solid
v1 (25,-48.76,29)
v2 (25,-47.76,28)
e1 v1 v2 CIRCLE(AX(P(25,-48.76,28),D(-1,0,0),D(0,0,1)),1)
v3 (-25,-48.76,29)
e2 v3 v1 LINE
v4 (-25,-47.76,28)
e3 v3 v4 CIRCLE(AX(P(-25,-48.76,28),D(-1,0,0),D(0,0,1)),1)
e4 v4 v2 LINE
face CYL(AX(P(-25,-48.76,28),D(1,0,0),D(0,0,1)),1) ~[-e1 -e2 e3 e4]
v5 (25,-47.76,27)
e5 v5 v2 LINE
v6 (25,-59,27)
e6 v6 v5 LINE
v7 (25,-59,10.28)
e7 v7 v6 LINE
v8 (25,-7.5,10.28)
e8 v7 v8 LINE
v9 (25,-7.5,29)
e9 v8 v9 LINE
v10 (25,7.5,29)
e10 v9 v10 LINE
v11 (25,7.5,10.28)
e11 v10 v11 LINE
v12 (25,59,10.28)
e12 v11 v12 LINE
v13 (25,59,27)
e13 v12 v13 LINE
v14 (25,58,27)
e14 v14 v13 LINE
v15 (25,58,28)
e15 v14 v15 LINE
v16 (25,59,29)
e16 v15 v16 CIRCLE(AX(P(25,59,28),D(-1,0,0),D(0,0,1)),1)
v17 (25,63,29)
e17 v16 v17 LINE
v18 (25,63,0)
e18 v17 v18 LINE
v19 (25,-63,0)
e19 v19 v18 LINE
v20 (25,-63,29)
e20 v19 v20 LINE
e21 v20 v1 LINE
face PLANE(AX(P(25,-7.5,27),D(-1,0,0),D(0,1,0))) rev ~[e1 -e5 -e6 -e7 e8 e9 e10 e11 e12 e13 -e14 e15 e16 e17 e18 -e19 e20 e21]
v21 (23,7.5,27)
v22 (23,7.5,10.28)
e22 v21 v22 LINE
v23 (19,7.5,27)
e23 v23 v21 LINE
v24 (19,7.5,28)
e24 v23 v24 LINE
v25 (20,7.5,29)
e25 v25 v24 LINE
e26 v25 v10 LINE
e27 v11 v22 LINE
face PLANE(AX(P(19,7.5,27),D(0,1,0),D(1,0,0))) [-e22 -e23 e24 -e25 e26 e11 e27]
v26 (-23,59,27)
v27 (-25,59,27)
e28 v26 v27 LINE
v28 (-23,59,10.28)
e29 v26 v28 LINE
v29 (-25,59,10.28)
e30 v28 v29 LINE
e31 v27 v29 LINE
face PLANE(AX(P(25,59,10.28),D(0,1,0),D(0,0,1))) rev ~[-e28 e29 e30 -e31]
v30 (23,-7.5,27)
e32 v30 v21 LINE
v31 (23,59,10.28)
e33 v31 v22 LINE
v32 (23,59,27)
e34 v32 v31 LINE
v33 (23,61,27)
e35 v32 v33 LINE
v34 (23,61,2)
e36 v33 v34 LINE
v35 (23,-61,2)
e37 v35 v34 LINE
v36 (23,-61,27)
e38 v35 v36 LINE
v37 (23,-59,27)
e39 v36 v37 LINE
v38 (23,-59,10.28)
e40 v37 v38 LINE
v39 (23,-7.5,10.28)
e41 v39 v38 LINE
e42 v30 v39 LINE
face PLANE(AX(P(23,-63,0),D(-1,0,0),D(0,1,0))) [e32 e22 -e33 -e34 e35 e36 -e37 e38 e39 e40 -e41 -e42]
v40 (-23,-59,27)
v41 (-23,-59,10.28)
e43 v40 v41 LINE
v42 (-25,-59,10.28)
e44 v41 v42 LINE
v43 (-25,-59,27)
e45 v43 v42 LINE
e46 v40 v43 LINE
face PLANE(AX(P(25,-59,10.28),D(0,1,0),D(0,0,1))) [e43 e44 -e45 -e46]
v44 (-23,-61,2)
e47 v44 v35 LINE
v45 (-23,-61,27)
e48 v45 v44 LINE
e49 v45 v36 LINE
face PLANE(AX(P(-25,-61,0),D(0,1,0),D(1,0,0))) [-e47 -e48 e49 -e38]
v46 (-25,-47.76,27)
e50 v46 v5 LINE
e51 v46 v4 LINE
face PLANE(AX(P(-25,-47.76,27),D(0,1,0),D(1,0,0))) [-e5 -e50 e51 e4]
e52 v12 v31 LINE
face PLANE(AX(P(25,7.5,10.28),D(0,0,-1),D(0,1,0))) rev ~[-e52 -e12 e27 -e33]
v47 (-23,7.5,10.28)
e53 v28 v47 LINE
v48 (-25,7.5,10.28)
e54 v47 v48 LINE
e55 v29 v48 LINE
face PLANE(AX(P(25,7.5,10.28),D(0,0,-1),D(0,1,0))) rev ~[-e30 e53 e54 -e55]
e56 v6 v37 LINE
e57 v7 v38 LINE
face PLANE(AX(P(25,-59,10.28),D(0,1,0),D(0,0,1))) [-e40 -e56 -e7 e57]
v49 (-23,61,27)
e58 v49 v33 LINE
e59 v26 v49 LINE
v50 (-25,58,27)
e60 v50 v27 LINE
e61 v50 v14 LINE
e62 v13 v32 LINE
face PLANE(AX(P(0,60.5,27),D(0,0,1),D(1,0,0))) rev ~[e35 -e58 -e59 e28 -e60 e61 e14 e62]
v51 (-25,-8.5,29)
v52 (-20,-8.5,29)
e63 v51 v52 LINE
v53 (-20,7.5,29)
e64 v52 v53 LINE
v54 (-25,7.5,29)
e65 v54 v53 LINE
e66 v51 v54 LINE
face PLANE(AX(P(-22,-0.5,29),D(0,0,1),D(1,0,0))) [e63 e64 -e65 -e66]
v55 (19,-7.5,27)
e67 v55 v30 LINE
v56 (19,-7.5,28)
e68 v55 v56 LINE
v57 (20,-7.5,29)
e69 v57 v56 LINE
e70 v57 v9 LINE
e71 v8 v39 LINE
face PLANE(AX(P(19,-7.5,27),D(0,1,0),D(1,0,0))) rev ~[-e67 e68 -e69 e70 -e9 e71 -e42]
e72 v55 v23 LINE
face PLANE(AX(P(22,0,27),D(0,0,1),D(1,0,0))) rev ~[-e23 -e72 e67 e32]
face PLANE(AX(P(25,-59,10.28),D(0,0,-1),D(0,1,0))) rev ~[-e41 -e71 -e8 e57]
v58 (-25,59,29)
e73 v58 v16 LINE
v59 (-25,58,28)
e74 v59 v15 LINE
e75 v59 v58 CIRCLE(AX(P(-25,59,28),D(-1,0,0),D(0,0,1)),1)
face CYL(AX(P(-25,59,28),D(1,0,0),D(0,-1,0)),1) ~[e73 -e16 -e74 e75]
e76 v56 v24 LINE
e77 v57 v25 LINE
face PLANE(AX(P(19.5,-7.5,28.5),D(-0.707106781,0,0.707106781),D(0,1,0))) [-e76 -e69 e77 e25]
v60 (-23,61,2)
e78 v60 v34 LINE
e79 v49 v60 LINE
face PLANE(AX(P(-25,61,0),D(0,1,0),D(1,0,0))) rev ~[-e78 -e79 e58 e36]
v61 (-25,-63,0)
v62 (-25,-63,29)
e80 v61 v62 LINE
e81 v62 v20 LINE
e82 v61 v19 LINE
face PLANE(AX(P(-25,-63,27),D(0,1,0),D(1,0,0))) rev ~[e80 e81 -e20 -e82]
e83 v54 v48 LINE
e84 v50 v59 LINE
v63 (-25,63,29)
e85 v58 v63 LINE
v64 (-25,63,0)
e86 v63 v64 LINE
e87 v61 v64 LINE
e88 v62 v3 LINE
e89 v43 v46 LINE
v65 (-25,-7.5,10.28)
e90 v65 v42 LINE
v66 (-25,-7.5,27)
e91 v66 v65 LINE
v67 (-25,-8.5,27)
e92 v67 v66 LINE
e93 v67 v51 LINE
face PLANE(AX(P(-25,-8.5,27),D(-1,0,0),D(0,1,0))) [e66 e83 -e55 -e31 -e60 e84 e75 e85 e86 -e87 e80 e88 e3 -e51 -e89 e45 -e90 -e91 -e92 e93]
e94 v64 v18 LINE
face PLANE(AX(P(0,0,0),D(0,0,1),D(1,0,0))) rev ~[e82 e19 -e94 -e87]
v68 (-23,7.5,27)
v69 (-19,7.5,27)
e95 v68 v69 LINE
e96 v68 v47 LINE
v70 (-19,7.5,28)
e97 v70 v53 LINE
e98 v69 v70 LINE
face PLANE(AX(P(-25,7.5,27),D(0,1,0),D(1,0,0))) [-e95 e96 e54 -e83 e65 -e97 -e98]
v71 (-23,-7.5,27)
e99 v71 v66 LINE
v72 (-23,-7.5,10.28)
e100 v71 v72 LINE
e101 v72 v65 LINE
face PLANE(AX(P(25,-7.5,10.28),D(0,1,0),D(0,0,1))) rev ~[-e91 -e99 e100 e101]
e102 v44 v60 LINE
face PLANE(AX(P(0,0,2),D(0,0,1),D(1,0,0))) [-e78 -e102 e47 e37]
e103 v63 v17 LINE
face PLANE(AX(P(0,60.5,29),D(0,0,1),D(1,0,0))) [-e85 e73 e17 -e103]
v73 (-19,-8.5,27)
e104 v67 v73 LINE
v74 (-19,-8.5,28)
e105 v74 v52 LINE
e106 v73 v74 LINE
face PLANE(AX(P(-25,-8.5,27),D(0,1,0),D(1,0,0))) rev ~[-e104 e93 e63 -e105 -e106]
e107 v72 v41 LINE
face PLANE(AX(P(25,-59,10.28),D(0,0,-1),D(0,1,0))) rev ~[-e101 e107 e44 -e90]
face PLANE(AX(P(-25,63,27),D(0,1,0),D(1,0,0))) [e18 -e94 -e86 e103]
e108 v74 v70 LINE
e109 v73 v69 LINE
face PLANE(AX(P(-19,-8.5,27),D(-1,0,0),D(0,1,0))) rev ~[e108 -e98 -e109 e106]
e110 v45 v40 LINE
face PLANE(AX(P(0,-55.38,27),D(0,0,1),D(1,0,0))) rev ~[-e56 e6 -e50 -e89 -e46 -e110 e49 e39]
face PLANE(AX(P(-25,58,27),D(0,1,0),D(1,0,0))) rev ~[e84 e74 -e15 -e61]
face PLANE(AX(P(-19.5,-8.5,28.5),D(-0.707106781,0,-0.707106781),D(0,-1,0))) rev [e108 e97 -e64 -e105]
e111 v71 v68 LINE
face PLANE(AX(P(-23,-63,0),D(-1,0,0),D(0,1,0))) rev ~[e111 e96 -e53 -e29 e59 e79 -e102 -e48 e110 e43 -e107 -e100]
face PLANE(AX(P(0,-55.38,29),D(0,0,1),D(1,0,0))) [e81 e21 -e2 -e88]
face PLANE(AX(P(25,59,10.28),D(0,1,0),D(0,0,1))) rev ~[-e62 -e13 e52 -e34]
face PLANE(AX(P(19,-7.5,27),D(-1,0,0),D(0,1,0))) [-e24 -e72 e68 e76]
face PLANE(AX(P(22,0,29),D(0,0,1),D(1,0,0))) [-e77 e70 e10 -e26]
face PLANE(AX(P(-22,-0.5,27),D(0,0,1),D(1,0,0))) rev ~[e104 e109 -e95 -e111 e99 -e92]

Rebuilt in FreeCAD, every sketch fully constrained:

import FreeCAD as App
import Part
import Sketcher
Q = App.Units.Quantity


def edges_at(feature, points):
    """Names of the edges that pass closest to the given points."""
    edges = feature.Shape.Edges
    near = lambda p: min(range(len(edges)), key=lambda i: edges[i].distToShape(Part.Vertex(*p))[0])
    return sorted({f"Edge{near(p) + 1}" for p in points})


def faces_at(feature, points):
    """Names of the faces that lie closest to the given points."""
    faces = feature.Shape.Faces
    near = lambda p: min(range(len(faces)), key=lambda i: faces[i].distToShape(Part.Vertex(*p))[0])
    return sorted({f"Face{near(p) + 1}" for p in points})

doc = App.newDocument("Part")
body = doc.addObject("PartDesign::Body", "Body")

# Sketch on XY plane
sketch1 = body.newObject("Sketcher::SketchObject", "Sketch")
sketch1.AttachmentSupport = (doc.getObject("XY_Plane"), [""])
sketch1.MapMode = "FlatFace"
sketch1.addGeometry([
    Part.LineSegment(App.Vector(-25, 63, 0), App.Vector(-25, -63, 0)),
    Part.LineSegment(App.Vector(-25, -63, 0), App.Vector(25, -63, 0)),
    Part.LineSegment(App.Vector(25, -63, 0), App.Vector(25, 63, 0)),
    Part.LineSegment(App.Vector(25, 63, 0), App.Vector(-25, 63, 0)),
], False)
sketch1.addConstraint([
    Sketcher.Constraint("Coincident", 0, 2, 1, 1),
    Sketcher.Constraint("Coincident", 1, 2, 2, 1),
    Sketcher.Constraint("Coincident", 2, 2, 3, 1),
    Sketcher.Constraint("Coincident", 3, 2, 0, 1),
    Sketcher.Constraint("Vertical", 0),
    Sketcher.Constraint("Horizontal", 1),
    Sketcher.Constraint("Vertical", 2),
    Sketcher.Constraint("Horizontal", 3),
    Sketcher.Constraint("Symmetric", 0, 2, 2, 2, -1, 1),
    Sketcher.Constraint("DistanceX", 1, 1, 1, 2, Q("50 mm")),
    Sketcher.Constraint("DistanceY", 0, 2, 0, 1, Q("126 mm")),
])
pad1 = body.newObject("PartDesign::Pad", "Pad")
pad1.Profile = sketch1
pad1.Length = 27
doc.recompute()

thickness = body.newObject("PartDesign::Thickness", "Thickness")
thickness.Base = (pad1, faces_at(pad1, [(0, 0, 27)]))
thickness.Value = 2
thickness.Reversed = True
thickness.Join = "Arc"

# Sketch on YZ plane
sketch2 = body.newObject("Sketcher::SketchObject", "Sketch001")
sketch2.AttachmentSupport = (doc.getObject("YZ_Plane"), [""])
sketch2.MapMode = "FlatFace"
sketch2.AttachmentOffset = App.Placement(App.Vector(0, 0, 25), App.Rotation())
sketch2.addGeometry([
    Part.LineSegment(App.Vector(-59, 27, 0), App.Vector(-59, 10, 0)),  # 0
    Part.LineSegment(App.Vector(-59, 10, 0), App.Vector(-8, 10, 0)),  # 1
    Part.LineSegment(App.Vector(-8, 10, 0), App.Vector(-8, 27, 0)),  # 2
    Part.LineSegment(App.Vector(-8, 27, 0), App.Vector(-59, 27, 0)),  # 3
    Part.LineSegment(App.Vector(8, 27, 0), App.Vector(8, 10, 0)),  # 4
    Part.LineSegment(App.Vector(8, 10, 0), App.Vector(59, 10, 0)),  # 5
    Part.LineSegment(App.Vector(59, 10, 0), App.Vector(59, 27, 0)),  # 6
    Part.LineSegment(App.Vector(59, 27, 0), App.Vector(8, 27, 0)),  # 7
], False)
sketch2.addConstraint([
    Sketcher.Constraint("Coincident", 0, 2, 1, 1),
    Sketcher.Constraint("Coincident", 1, 2, 2, 1),
    Sketcher.Constraint("Coincident", 2, 2, 3, 1),
    Sketcher.Constraint("Coincident", 3, 2, 0, 1),
    Sketcher.Constraint("Coincident", 4, 2, 5, 1),
    Sketcher.Constraint("Coincident", 5, 2, 6, 1),
    Sketcher.Constraint("Coincident", 6, 2, 7, 1),
    Sketcher.Constraint("Coincident", 7, 2, 4, 1),
    Sketcher.Constraint("Vertical", 0),
    Sketcher.Constraint("Horizontal", 1),
    Sketcher.Constraint("Vertical", 2),
    Sketcher.Constraint("Horizontal", 3),
    Sketcher.Constraint("Vertical", 4),
    Sketcher.Constraint("Horizontal", 5),
    Sketcher.Constraint("Vertical", 6),
    Sketcher.Constraint("Horizontal", 7),
    Sketcher.Constraint("Symmetric", 1, 2, 4, 2, -2),
    Sketcher.Constraint("Symmetric", 3, 2, 6, 2, -2),
    Sketcher.Constraint("DistanceX", 1, 1, 1, 2, Q("51.5 mm")),
    Sketcher.Constraint("DistanceX", 0, 2, -1, 1, Q("59 mm")),
    Sketcher.Constraint("DistanceY", -1, 1, 2, 2, Q("27 mm")),
    Sketcher.Constraint("DistanceY", 0, 2, 0, 1, Q("16.72 mm")),
])
pocket1 = body.newObject("PartDesign::Pocket", "Pocket")
pocket1.Profile = sketch2
pocket1.Type = "ThroughAll"

# Sketch on XY plane
sketch3 = body.newObject("Sketcher::SketchObject", "Sketch002")
sketch3.AttachmentSupport = (doc.getObject("XY_Plane"), [""])
sketch3.MapMode = "FlatFace"
sketch3.AttachmentOffset = App.Placement(App.Vector(0, 0, 27), App.Rotation())
sketch3.addGeometry([
    Part.LineSegment(App.Vector(-25, -48, 0), App.Vector(-25, -63, 0)),
    Part.LineSegment(App.Vector(-25, -63, 0), App.Vector(25, -63, 0)),
    Part.LineSegment(App.Vector(25, -63, 0), App.Vector(25, -48, 0)),
    Part.LineSegment(App.Vector(25, -48, 0), App.Vector(-25, -48, 0)),
], False)
sketch3.addConstraint([
    Sketcher.Constraint("Coincident", 0, 2, 1, 1),
    Sketcher.Constraint("Coincident", 1, 2, 2, 1),
    Sketcher.Constraint("Coincident", 2, 2, 3, 1),
    Sketcher.Constraint("Coincident", 3, 2, 0, 1),
    Sketcher.Constraint("Vertical", 0),
    Sketcher.Constraint("Horizontal", 1),
    Sketcher.Constraint("Vertical", 2),
    Sketcher.Constraint("Horizontal", 3),
    Sketcher.Constraint("DistanceX", 1, 1, 1, 2, Q("50 mm")),
    Sketcher.Constraint("DistanceX", 0, 2, -1, 1, Q("25 mm")),
    Sketcher.Constraint("DistanceY", 0, 2, -1, 1, Q("63 mm")),
    Sketcher.Constraint("DistanceY", 0, 2, 0, 1, Q("15.24 mm")),
])
pad2 = body.newObject("PartDesign::Pad", "Pad001")
pad2.Profile = sketch3
pad2.Length = 2

# Sketch on XY plane
sketch4 = body.newObject("Sketcher::SketchObject", "Sketch003")
sketch4.AttachmentSupport = (doc.getObject("XY_Plane"), [""])
sketch4.MapMode = "FlatFace"
sketch4.AttachmentOffset = App.Placement(App.Vector(0, 0, 27), App.Rotation())
sketch4.addGeometry([
    Part.LineSegment(App.Vector(-25, 63, 0), App.Vector(-25, 58, 0)),
    Part.LineSegment(App.Vector(-25, 58, 0), App.Vector(25, 58, 0)),
    Part.LineSegment(App.Vector(25, 58, 0), App.Vector(25, 63, 0)),
    Part.LineSegment(App.Vector(25, 63, 0), App.Vector(-25, 63, 0)),
], False)
sketch4.addConstraint([
    Sketcher.Constraint("Coincident", 0, 2, 1, 1),
    Sketcher.Constraint("Coincident", 1, 2, 2, 1),
    Sketcher.Constraint("Coincident", 2, 2, 3, 1),
    Sketcher.Constraint("Coincident", 3, 2, 0, 1),
    Sketcher.Constraint("Vertical", 0),
    Sketcher.Constraint("Horizontal", 1),
    Sketcher.Constraint("Vertical", 2),
    Sketcher.Constraint("Horizontal", 3),
    Sketcher.Constraint("DistanceX", 1, 1, 1, 2, Q("50 mm")),
    Sketcher.Constraint("DistanceY", 0, 2, 0, 1, Q("5 mm")),
    Sketcher.Constraint("DistanceX", 0, 2, -1, 1, Q("25 mm")),
    Sketcher.Constraint("DistanceY", -1, 1, 0, 2, Q("58 mm")),
])
pad3 = body.newObject("PartDesign::Pad", "Pad002")
pad3.Profile = sketch4
pad3.Length = 2

# Sketch on XY plane
sketch5 = body.newObject("Sketcher::SketchObject", "Sketch004")
sketch5.AttachmentSupport = (doc.getObject("XY_Plane"), [""])
sketch5.MapMode = "FlatFace"
sketch5.AttachmentOffset = App.Placement(App.Vector(0, 0, 27), App.Rotation())
sketch5.addGeometry([
    Part.LineSegment(App.Vector(19, 8, 0), App.Vector(19, -8, 0)),
    Part.LineSegment(App.Vector(19, -8, 0), App.Vector(25, -8, 0)),
    Part.LineSegment(App.Vector(25, -8, 0), App.Vector(25, 8, 0)),
    Part.LineSegment(App.Vector(25, 8, 0), App.Vector(19, 8, 0)),
], False)
sketch5.addConstraint([
    Sketcher.Constraint("Coincident", 0, 2, 1, 1),
    Sketcher.Constraint("Coincident", 1, 2, 2, 1),
    Sketcher.Constraint("Coincident", 2, 2, 3, 1),
    Sketcher.Constraint("Coincident", 3, 2, 0, 1),
    Sketcher.Constraint("Vertical", 0),
    Sketcher.Constraint("Horizontal", 1),
    Sketcher.Constraint("Vertical", 2),
    Sketcher.Constraint("Horizontal", 3),
    Sketcher.Constraint("DistanceX", 1, 1, 1, 2, Q("6 mm")),
    Sketcher.Constraint("DistanceY", 0, 2, 0, 1, Q("15 mm")),
    Sketcher.Constraint("DistanceX", -1, 1, 0, 2, Q("19 mm")),
    Sketcher.Constraint("DistanceY", 0, 2, -1, 1, Q("7.5 mm")),
])
pad4 = body.newObject("PartDesign::Pad", "Pad003")
pad4.Profile = sketch5
pad4.Length = 2

# Sketch on XY plane
sketch6 = body.newObject("Sketcher::SketchObject", "Sketch005")
sketch6.AttachmentSupport = (doc.getObject("XY_Plane"), [""])
sketch6.MapMode = "FlatFace"
sketch6.AttachmentOffset = App.Placement(App.Vector(0, 0, 27), App.Rotation())
sketch6.addGeometry([
    Part.LineSegment(App.Vector(-25, 8, 0), App.Vector(-25, -8, 0)),
    Part.LineSegment(App.Vector(-25, -8, 0), App.Vector(-19, -8, 0)),
    Part.LineSegment(App.Vector(-19, -8, 0), App.Vector(-19, 8, 0)),
    Part.LineSegment(App.Vector(-19, 8, 0), App.Vector(-25, 8, 0)),
], False)
sketch6.addConstraint([
    Sketcher.Constraint("Coincident", 0, 2, 1, 1),
    Sketcher.Constraint("Coincident", 1, 2, 2, 1),
    Sketcher.Constraint("Coincident", 2, 2, 3, 1),
    Sketcher.Constraint("Coincident", 3, 2, 0, 1),
    Sketcher.Constraint("Vertical", 0),
    Sketcher.Constraint("Horizontal", 1),
    Sketcher.Constraint("Vertical", 2),
    Sketcher.Constraint("Horizontal", 3),
    Sketcher.Constraint("DistanceX", 1, 1, 1, 2, Q("6 mm")),
    Sketcher.Constraint("DistanceY", 0, 2, 0, 1, Q("16 mm")),
    Sketcher.Constraint("DistanceX", 0, 2, -1, 1, Q("25 mm")),
    Sketcher.Constraint("DistanceY", 0, 2, -1, 1, Q("8.5 mm")),
])
pad5 = body.newObject("PartDesign::Pad", "Pad004")
pad5.Profile = sketch6
pad5.Length = 2
doc.recompute()

chamfer = body.newObject("PartDesign::Chamfer", "Chamfer")
chamfer.Base = (pad5, edges_at(pad5, [(-19, -0.5, 29)]))
chamfer.Size = 1
doc.recompute()

chamfer2 = body.newObject("PartDesign::Chamfer", "Chamfer001")
chamfer2.Base = (chamfer, edges_at(chamfer, [(19, 0, 29)]))
chamfer2.Size = 1
doc.recompute()

fillet = body.newObject("PartDesign::Fillet", "Fillet")
fillet.Base = (chamfer2, edges_at(chamfer2, [(0, 58, 29)]))
fillet.Radius = 1
doc.recompute()

fillet2 = body.newObject("PartDesign::Fillet", "Fillet001")
fillet2.Base = (fillet, edges_at(fillet, [(0, -47.76, 29)]))
fillet2.Radius = 1

doc.recompute()
